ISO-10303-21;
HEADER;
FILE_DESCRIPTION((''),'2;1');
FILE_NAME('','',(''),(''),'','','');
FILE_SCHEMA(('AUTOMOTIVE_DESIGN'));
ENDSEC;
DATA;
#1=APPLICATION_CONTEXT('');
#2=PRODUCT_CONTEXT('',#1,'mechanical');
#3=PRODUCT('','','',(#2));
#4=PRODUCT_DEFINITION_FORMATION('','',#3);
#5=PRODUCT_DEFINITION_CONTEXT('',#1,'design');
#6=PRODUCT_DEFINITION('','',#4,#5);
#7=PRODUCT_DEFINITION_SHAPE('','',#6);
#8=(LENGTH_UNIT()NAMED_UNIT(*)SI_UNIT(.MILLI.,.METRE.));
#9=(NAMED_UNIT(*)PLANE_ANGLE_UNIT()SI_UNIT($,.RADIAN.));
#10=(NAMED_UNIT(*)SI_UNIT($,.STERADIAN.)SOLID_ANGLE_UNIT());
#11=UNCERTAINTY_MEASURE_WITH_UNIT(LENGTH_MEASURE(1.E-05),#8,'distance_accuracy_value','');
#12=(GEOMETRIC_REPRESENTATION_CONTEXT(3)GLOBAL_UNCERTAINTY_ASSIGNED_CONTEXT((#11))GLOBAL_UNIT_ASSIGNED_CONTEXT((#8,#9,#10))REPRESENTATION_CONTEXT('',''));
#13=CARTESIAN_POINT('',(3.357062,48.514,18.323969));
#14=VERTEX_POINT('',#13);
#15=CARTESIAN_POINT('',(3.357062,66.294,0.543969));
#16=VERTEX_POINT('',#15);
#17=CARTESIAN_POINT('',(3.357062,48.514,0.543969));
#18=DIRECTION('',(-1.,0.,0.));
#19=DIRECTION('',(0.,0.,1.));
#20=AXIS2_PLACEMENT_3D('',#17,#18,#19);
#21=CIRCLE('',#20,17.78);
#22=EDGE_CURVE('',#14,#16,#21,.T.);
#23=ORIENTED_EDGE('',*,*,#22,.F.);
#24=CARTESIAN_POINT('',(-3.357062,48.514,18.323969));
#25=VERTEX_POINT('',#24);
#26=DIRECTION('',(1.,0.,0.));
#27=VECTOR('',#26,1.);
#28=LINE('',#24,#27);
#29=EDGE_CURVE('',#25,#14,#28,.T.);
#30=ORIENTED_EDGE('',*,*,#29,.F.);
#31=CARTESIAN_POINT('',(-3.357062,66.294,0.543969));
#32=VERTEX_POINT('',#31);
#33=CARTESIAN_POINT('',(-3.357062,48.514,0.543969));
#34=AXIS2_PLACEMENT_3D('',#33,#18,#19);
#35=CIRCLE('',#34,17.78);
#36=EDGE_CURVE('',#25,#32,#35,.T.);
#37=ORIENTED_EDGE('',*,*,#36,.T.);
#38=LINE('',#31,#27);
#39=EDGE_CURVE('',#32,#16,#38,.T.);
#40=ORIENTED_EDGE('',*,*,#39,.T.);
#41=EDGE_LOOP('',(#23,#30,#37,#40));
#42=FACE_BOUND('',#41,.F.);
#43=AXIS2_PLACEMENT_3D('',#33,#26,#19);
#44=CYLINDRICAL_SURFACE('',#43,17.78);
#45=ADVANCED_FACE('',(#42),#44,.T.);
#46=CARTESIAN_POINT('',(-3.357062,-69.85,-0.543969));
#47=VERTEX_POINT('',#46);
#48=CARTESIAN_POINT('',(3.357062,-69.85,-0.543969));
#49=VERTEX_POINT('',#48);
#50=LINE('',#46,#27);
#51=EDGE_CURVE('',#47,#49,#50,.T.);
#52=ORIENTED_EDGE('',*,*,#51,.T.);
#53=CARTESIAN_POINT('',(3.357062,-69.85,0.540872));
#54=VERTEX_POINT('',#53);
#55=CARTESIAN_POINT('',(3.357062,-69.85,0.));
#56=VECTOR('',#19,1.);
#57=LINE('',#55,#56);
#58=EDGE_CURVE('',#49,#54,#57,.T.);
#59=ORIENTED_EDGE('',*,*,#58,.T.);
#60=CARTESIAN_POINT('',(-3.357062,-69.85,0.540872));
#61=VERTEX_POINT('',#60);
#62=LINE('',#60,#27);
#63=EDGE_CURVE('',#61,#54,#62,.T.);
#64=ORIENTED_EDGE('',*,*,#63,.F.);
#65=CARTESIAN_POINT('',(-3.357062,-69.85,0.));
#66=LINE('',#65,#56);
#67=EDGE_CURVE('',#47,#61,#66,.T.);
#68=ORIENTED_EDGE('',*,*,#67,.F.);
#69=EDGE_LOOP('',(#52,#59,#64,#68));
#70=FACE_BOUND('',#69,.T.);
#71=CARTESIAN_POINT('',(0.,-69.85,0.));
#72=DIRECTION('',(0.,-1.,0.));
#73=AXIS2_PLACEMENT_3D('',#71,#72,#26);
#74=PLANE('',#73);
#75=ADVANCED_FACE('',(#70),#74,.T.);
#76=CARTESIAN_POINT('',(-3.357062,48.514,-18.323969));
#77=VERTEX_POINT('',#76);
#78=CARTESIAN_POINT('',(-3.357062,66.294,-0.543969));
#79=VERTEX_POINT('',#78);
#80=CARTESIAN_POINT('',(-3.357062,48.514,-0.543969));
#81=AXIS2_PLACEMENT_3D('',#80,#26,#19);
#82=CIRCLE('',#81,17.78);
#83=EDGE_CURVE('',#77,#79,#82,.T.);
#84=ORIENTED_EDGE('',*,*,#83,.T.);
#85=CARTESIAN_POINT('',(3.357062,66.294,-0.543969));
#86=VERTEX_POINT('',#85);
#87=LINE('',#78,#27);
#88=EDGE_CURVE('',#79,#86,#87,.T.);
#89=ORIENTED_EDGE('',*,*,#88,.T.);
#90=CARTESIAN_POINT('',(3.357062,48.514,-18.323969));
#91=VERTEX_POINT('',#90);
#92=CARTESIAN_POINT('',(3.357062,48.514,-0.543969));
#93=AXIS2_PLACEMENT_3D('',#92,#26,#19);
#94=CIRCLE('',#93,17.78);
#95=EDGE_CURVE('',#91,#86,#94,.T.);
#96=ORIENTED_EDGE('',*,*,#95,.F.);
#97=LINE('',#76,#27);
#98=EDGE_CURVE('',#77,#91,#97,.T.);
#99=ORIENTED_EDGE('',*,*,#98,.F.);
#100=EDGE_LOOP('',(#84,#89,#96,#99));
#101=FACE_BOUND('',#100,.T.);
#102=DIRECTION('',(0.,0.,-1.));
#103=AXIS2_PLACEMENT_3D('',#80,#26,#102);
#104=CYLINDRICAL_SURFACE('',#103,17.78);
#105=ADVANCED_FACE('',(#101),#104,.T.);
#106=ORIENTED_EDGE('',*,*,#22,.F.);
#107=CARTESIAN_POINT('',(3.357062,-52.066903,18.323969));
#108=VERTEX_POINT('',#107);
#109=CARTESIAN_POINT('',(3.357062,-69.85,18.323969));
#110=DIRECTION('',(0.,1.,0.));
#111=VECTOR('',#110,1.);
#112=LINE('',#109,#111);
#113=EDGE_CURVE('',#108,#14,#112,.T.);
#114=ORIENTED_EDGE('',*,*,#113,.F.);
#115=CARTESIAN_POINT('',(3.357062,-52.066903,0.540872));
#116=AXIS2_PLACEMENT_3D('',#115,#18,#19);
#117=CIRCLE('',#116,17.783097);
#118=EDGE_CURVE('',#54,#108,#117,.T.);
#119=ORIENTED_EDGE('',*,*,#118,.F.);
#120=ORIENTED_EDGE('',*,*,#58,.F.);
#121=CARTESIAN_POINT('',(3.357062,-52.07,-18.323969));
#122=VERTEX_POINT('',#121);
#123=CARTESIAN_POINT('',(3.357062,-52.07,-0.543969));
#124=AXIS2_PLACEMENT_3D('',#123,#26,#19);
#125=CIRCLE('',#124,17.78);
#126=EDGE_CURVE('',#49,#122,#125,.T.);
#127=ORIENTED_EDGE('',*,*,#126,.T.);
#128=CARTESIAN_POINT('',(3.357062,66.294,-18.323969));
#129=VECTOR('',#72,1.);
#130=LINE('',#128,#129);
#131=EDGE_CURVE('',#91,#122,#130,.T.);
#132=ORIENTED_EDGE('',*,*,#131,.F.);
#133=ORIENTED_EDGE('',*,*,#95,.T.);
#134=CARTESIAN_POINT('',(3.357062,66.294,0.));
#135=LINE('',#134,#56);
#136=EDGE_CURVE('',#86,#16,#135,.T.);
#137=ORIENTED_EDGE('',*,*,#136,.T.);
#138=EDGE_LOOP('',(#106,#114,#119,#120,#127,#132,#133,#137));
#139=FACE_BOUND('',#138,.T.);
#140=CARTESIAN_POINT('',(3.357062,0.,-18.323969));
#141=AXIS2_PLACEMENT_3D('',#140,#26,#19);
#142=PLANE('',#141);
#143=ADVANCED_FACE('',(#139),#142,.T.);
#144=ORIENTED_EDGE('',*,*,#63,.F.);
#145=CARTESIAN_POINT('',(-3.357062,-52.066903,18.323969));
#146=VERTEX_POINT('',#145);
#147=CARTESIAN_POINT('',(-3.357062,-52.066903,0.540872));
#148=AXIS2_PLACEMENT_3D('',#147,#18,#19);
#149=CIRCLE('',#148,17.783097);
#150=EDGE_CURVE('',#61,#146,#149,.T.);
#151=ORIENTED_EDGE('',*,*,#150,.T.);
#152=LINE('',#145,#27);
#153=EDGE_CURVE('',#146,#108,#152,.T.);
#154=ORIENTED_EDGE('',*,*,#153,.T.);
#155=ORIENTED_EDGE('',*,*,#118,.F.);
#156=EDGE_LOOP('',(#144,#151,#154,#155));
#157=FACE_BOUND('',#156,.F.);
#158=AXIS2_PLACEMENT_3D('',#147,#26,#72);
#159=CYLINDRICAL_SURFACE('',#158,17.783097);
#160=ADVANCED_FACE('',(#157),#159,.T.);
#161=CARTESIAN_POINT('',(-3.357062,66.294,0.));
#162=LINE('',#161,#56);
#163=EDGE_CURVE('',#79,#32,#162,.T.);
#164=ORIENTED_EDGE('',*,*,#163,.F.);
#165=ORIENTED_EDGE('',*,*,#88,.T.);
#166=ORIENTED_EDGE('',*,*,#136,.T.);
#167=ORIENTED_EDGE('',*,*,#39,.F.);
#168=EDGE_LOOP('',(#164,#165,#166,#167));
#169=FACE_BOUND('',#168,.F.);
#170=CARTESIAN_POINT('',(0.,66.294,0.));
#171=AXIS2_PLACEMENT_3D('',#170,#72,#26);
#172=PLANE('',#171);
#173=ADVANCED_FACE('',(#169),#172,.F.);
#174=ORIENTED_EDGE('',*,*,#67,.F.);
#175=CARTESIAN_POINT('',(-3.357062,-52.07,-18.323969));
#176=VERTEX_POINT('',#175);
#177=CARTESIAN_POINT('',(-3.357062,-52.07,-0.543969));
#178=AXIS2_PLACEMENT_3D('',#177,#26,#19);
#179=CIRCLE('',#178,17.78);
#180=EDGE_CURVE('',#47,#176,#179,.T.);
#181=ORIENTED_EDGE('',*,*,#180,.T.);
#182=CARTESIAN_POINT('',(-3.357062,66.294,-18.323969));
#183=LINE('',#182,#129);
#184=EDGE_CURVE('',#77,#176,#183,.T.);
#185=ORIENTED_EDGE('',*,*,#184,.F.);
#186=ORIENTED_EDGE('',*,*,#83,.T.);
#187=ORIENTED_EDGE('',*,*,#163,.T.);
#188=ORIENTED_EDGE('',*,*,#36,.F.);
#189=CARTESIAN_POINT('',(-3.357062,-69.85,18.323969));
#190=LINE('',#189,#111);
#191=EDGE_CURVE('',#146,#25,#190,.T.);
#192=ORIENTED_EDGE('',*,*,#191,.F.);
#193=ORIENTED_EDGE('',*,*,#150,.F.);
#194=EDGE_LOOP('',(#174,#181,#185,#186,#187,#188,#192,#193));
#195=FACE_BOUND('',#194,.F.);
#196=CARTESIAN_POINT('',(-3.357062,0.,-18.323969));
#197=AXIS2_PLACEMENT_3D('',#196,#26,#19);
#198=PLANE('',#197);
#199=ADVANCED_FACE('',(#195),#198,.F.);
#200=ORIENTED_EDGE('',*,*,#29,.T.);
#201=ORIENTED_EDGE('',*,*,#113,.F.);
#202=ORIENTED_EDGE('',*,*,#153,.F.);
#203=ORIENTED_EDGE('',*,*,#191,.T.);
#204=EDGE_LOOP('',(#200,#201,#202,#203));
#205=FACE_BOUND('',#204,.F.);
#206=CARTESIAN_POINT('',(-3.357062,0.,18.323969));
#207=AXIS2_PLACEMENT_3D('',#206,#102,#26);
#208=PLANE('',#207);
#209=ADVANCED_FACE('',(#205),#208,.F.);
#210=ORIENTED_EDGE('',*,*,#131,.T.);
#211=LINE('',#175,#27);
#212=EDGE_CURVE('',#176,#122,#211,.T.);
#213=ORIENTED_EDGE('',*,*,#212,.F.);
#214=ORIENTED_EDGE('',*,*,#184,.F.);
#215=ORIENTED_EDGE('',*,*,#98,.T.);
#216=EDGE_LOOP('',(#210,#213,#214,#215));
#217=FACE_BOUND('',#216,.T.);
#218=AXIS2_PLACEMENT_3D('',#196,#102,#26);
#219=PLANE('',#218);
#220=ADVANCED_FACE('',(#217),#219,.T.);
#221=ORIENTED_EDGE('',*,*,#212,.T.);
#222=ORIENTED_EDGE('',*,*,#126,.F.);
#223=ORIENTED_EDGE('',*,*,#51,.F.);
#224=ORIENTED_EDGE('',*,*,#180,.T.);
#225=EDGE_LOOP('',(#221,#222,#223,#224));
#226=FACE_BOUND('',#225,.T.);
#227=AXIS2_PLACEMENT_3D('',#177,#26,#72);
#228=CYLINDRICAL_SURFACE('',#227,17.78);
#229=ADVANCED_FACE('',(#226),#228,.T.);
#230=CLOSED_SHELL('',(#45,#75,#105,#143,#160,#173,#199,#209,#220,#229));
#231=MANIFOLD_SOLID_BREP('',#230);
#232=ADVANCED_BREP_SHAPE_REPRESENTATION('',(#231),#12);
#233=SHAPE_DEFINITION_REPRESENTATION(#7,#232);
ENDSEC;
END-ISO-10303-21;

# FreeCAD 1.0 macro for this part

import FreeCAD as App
import Part
import Sketcher

V = App.Vector
Q = App.Units.Quantity


def edges_at(feature, points):
    """Names of the edges that pass closest to the given points."""
    edges = feature.Shape.Edges
    near = lambda p: min(range(len(edges)), key=lambda i: edges[i].distToShape(Part.Vertex(*p))[0])
    return sorted({f"Edge{near(p) + 1}" for p in points})

doc = App.newDocument("Part")
body = doc.addObject("PartDesign::Body", "Body")

sketch1 = body.newObject("Sketcher::SketchObject", "Sketch")
sketch1.AttachmentSupport = (doc.getObject("XZ_Plane"), [""])
sketch1.MapMode = "FlatFace"
sketch1.addGeometry([
    Part.LineSegment(V(-3.357062, 18.323969, 0), V(-3.357062, -18.323969, 0)),
    Part.LineSegment(V(-3.357062, -18.323969, 0), V(3.357062, -18.323969, 0)),
    Part.LineSegment(V(3.357062, -18.323969, 0), V(3.357062, 18.323969, 0)),
    Part.LineSegment(V(3.357062, 18.323969, 0), V(-3.357062, 18.323969, 0)),
], False)
sketch1.addConstraint([
    Sketcher.Constraint("Coincident", 0, 2, 1, 1),
    Sketcher.Constraint("Coincident", 1, 2, 2, 1),
    Sketcher.Constraint("Coincident", 2, 2, 3, 1),
    Sketcher.Constraint("Coincident", 3, 2, 0, 1),
    Sketcher.Constraint("Vertical", 0),
    Sketcher.Constraint("Horizontal", 1),
    Sketcher.Constraint("Vertical", 2),
    Sketcher.Constraint("Horizontal", 3),
    Sketcher.Constraint("Symmetric", 0, 2, 2, 2, -1, 1),
    Sketcher.Constraint("DistanceY", 0, 2, 0, 1, Q("36.647938 mm")),
    Sketcher.Constraint("DistanceX", 1, 1, 1, 2, Q("6.714124 mm")),
])
pad1 = body.newObject("PartDesign::Pad", "Pad")
pad1.Profile = sketch1
pad1.Type = "TwoLengths"
pad1.Length = Q("2.75 in")
pad1.Length2 = Q("2.61 in")
doc.recompute()

fillet = body.newObject("PartDesign::Fillet", "Fillet")
fillet.Base = (pad1, edges_at(pad1, [(0, -69.85, 18.324)]))
fillet.Radius = 17.783097
doc.recompute()

fillet2 = body.newObject("PartDesign::Fillet", "Fillet001")
fillet2.Base = (fillet, edges_at(fillet, [(0, -69.85, -18.324)]))
fillet2.Radius = Q("0.7 in")
doc.recompute()

fillet3 = body.newObject("PartDesign::Fillet", "Fillet002")
fillet3.Base = (fillet2, edges_at(fillet2, [(0, 66.294, -18.324), (0, 66.294, 18.324)]))
fillet3.Radius = Q("0.7 in")

doc.recompute()
